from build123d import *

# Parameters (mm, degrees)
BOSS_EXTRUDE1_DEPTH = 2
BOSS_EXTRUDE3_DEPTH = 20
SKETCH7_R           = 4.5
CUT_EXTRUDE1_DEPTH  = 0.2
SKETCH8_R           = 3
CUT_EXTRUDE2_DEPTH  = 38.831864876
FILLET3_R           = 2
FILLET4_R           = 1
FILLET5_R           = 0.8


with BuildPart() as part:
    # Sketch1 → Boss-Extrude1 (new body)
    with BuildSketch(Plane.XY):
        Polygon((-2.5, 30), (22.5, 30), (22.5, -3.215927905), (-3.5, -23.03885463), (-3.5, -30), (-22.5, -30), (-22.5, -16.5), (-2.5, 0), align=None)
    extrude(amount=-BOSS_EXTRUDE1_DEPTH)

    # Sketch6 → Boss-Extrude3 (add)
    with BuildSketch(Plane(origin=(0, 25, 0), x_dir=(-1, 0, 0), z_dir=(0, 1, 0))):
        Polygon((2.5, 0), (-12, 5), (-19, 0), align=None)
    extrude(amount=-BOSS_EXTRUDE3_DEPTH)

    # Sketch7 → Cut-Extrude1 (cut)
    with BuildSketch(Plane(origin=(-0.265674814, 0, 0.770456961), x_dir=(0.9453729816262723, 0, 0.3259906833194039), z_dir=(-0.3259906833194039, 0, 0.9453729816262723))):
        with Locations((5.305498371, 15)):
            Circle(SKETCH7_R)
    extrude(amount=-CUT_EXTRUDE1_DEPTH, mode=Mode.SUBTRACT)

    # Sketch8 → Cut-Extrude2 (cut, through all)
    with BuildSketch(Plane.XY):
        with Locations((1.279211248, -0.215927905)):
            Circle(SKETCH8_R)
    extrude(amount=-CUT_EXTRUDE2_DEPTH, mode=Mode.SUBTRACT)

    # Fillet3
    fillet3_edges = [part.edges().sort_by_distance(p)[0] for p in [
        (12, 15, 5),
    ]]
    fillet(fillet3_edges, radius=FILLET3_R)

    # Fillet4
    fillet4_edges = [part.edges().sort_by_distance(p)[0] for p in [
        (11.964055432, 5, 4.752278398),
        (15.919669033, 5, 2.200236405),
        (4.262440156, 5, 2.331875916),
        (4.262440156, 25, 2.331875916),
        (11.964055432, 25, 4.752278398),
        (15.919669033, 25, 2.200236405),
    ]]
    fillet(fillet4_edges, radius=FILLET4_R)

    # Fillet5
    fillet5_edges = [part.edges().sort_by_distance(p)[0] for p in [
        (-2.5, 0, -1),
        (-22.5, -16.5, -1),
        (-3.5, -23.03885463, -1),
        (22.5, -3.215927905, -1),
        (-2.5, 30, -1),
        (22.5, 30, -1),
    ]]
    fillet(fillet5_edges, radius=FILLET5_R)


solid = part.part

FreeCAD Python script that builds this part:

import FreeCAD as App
import Part
import Sketcher

V = App.Vector
Q = App.Units.Quantity


def edges_at(feature, points):
    """Names of the edges that pass closest to the given points."""
    edges = feature.Shape.Edges
    near = lambda p: min(range(len(edges)), key=lambda i: edges[i].distToShape(Part.Vertex(*p))[0])
    return sorted({f"Edge{near(p) + 1}" for p in points})

doc = App.newDocument("Part")
params = doc.addObject("Spreadsheet::Sheet", "Params")
for row, (alias, value) in enumerate([
    ("sketch1_width", "25 mm"),
    ("sketch1_width2", "19 mm"),
    ("sketch1_height", "30 mm"),
    ("sketch1_height2", "13.5 mm"),
    ("pad1_length", "2 mm"),
    ("sketch2_width", "21.5 mm"),
    ("pad2_length", "20 mm"),
    ("sketch3_diameter", "9 mm"),
    ("pocket1_length", "0.2 mm"),
    ("sketch4_diameter", "6 mm"),
    ("fillet_radius", "2 mm"),
    ("fillet2_radius", "1 mm"),
    ("fillet3_radius", "0.8 mm"),
], start=1):
    params.set(f"A{row}", alias)
    params.set(f"B{row}", "=" + value)
    params.setAlias(f"B{row}", alias)

body = doc.addObject("PartDesign::Body", "Body")

# Sketch on XY plane
sketch1 = body.newObject("Sketcher::SketchObject", "Sketch")
sketch1.AttachmentSupport = (doc.getObject("XY_Plane"), [""])
sketch1.MapMode = "FlatFace"
sketch1.addGeometry(Part.LineSegment(V(22.5, 30, 0), V(-2.5, 30, 0)), False)
sketch1.addGeometry(Part.LineSegment(V(-2.5, 30, 0), V(-2.5, 0, 0)), False)
sketch1.addGeometry(Part.LineSegment(V(-2.5, 0, 0), V(-22.5, -16.5, 0)), False)
sketch1.addGeometry(Part.LineSegment(V(-22.5, -16.5, 0), V(-22.5, -30, 0)), False)
sketch1.addGeometry(Part.LineSegment(V(-22.5, -30, 0), V(-3.5, -30, 0)), False)
sketch1.addGeometry(Part.LineSegment(V(-3.5, -30, 0), V(-3.5, -23.038855, 0)), False)
sketch1.addGeometry(Part.LineSegment(V(-3.5, -23.038855, 0), V(22.5, -3.215928, 0)), False)
sketch1.addGeometry(Part.LineSegment(V(22.5, -3.215928, 0), V(22.5, 30, 0)), False)
sketch1.addConstraint(Sketcher.Constraint("Coincident", 0, 2, 1, 1))
sketch1.addConstraint(Sketcher.Constraint("Coincident", 1, 2, 2, 1))
sketch1.addConstraint(Sketcher.Constraint("Coincident", 2, 2, 3, 1))
sketch1.addConstraint(Sketcher.Constraint("Coincident", 3, 2, 4, 1))
sketch1.addConstraint(Sketcher.Constraint("Coincident", 4, 2, 5, 1))
sketch1.addConstraint(Sketcher.Constraint("Coincident", 5, 2, 6, 1))
sketch1.addConstraint(Sketcher.Constraint("Coincident", 6, 2, 7, 1))
sketch1.addConstraint(Sketcher.Constraint("Coincident", 7, 2, 0, 1))
sketch1.addConstraint(Sketcher.Constraint("Horizontal", 0))
sketch1.addConstraint(Sketcher.Constraint("Vertical", 1))
sketch1.addConstraint(Sketcher.Constraint("Vertical", 3))
sketch1.addConstraint(Sketcher.Constraint("Horizontal", 4))
sketch1.addConstraint(Sketcher.Constraint("Vertical", 5))
sketch1.addConstraint(Sketcher.Constraint("Vertical", 7))
sketch1.addConstraint(Sketcher.Constraint("Symmetric", 3, 2, 7, 2, -1, 1))
sketch1.addConstraint(Sketcher.Constraint("PointOnObject", 1, 2, -1))
sketch1.addConstraint(Sketcher.Constraint("DistanceX", 0, 2, 0, 1, Q("25 mm")))
sketch1.addConstraint(Sketcher.Constraint("DistanceX", 4, 1, 4, 2, Q("19 mm")))
sketch1.addConstraint(Sketcher.Constraint("DistanceY", 1, 2, 1, 1, Q("30 mm")))
sketch1.addConstraint(Sketcher.Constraint("DistanceY", 3, 2, 3, 1, Q("13.5 mm")))
sketch1.addConstraint(Sketcher.Constraint("DistanceX", 2, 2, 1, 2, Q("20 mm")))
sketch1.addConstraint(Sketcher.Constraint("DistanceY", 5, 1, 5, 2, Q("6.961145 mm")))
sketch1.addConstraint(Sketcher.Constraint("DistanceY", 7, 1, 7, 2, Q("33.215928 mm")))
sketch1.setExpression("Constraints[16]", "Params.sketch1_width")
sketch1.setExpression("Constraints[17]", "Params.sketch1_width2")
sketch1.setExpression("Constraints[18]", "Params.sketch1_height")
sketch1.setExpression("Constraints[19]", "Params.sketch1_height2")
pad1 = body.newObject("PartDesign::Pad", "Pad")
pad1.Profile = sketch1
pad1.setExpression("Length", "Params.pad1_length")
pad1.Reversed = True

# Sketch on XZ plane
sketch2 = body.newObject("Sketcher::SketchObject", "Sketch001")
sketch2.AttachmentSupport = (doc.getObject("XZ_Plane"), [""])
sketch2.MapMode = "FlatFace"
sketch2.AttachmentOffset = App.Placement(V(0, 0, -25), App.Rotation())
sketch2.addGeometry(Part.LineSegment(V(-2.5, 0, 0), V(12, 5, 0)), False)
sketch2.addGeometry(Part.LineSegment(V(12, 5, 0), V(19, 0, 0)), False)
sketch2.addGeometry(Part.LineSegment(V(19, 0, 0), V(-2.5, 0, 0)), False)
sketch2.addConstraint(Sketcher.Constraint("Coincident", 0, 2, 1, 1))
sketch2.addConstraint(Sketcher.Constraint("Coincident", 1, 2, 2, 1))
sketch2.addConstraint(Sketcher.Constraint("Coincident", 2, 2, 0, 1))
sketch2.addConstraint(Sketcher.Constraint("Horizontal", 2))
sketch2.addConstraint(Sketcher.Constraint("PointOnObject", 1, 2, -1))
sketch2.addConstraint(Sketcher.Constraint("DistanceX", 2, 2, 2, 1, Q("21.5 mm")))
sketch2.addConstraint(Sketcher.Constraint("DistanceX", -1, 1, 0, 2, Q("12 mm")))
sketch2.addConstraint(Sketcher.Constraint("DistanceY", -1, 1, 0, 2, Q("5 mm")))
sketch2.addConstraint(Sketcher.Constraint("DistanceX", -1, 1, 1, 2, Q("19 mm")))
sketch2.setExpression("Constraints[5]", "Params.sketch2_width")
pad2 = body.newObject("PartDesign::Pad", "Pad001")
pad2.Profile = sketch2
pad2.setExpression("Length", "Params.pad2_length")

# Sketch on an angled plane
sketch3 = body.newObject("Sketcher::SketchObject", "Sketch002")
sketch3.Placement = App.Placement(V(-0.265675, 0, 0.770457), App.Rotation(V(0.945372982, 0, 0.325990683), V(0, 1, 0), V(-0.325990683, 0, 0.945372982), "ZXY"))
sketch3.addGeometry(Part.Circle(V(5.305498, 15, 0), V(0, 0, 1), 4.5), False)
sketch3.addConstraint(Sketcher.Constraint("Diameter", 0, Q("9 mm")))
sketch3.addConstraint(Sketcher.Constraint("DistanceY", -1, 1, 0, 3, Q("15 mm")))
sketch3.addConstraint(Sketcher.Constraint("DistanceX", -1, 1, 0, 3, Q("5.305498 mm")))
sketch3.setExpression("Constraints[0]", "Params.sketch3_diameter")
pocket1 = body.newObject("PartDesign::Pocket", "Pocket")
pocket1.Profile = sketch3
pocket1.setExpression("Length", "Params.pocket1_length")

# Sketch on XY plane
sketch4 = body.newObject("Sketcher::SketchObject", "Sketch003")
sketch4.AttachmentSupport = (doc.getObject("XY_Plane"), [""])
sketch4.MapMode = "FlatFace"
sketch4.addGeometry(Part.Circle(V(1.279211, -0.215928, 0), V(0, 0, 1), 3), False)
sketch4.addConstraint(Sketcher.Constraint("Diameter", 0, Q("6 mm")))
sketch4.addConstraint(Sketcher.Constraint("DistanceX", -1, 1, 0, 3, Q("1.279211 mm")))
sketch4.addConstraint(Sketcher.Constraint("DistanceY", 0, 3, -1, 1, Q("0.215928 mm")))
sketch4.setExpression("Constraints[0]", "Params.sketch4_diameter")
pocket2 = body.newObject("PartDesign::Pocket", "Pocket001")
pocket2.Profile = sketch4
pocket2.Type = "ThroughAll"
doc.recompute()

fillet = body.newObject("PartDesign::Fillet", "Fillet")
fillet.Base = (pocket2, edges_at(pocket2, [(12, 15, 5)]))
fillet.setExpression("Radius", "Params.fillet_radius")
doc.recompute()

fillet2 = body.newObject("PartDesign::Fillet", "Fillet001")
fillet2.Base = (fillet, edges_at(fillet, [
    (11.964, 5, 4.752),
    (15.92, 5, 2.2),
    (4.262, 5, 2.332),
    (4.262, 25, 2.332),
    (11.964, 25, 4.752),
    (15.92, 25, 2.2),
]))
fillet2.setExpression("Radius", "Params.fillet2_radius")
doc.recompute()

fillet3 = body.newObject("PartDesign::Fillet", "Fillet002")
fillet3.Base = (fillet2, edges_at(fillet2, [
    (-2.5, 0, -1),
    (-22.5, -16.5, -1),
    (-3.5, -23.039, -1),
    (22.5, -3.216, -1),
    (-2.5, 30, -1),
    (22.5, 30, -1),
]))
fillet3.setExpression("Radius", "Params.fillet3_radius")

doc.recompute()
